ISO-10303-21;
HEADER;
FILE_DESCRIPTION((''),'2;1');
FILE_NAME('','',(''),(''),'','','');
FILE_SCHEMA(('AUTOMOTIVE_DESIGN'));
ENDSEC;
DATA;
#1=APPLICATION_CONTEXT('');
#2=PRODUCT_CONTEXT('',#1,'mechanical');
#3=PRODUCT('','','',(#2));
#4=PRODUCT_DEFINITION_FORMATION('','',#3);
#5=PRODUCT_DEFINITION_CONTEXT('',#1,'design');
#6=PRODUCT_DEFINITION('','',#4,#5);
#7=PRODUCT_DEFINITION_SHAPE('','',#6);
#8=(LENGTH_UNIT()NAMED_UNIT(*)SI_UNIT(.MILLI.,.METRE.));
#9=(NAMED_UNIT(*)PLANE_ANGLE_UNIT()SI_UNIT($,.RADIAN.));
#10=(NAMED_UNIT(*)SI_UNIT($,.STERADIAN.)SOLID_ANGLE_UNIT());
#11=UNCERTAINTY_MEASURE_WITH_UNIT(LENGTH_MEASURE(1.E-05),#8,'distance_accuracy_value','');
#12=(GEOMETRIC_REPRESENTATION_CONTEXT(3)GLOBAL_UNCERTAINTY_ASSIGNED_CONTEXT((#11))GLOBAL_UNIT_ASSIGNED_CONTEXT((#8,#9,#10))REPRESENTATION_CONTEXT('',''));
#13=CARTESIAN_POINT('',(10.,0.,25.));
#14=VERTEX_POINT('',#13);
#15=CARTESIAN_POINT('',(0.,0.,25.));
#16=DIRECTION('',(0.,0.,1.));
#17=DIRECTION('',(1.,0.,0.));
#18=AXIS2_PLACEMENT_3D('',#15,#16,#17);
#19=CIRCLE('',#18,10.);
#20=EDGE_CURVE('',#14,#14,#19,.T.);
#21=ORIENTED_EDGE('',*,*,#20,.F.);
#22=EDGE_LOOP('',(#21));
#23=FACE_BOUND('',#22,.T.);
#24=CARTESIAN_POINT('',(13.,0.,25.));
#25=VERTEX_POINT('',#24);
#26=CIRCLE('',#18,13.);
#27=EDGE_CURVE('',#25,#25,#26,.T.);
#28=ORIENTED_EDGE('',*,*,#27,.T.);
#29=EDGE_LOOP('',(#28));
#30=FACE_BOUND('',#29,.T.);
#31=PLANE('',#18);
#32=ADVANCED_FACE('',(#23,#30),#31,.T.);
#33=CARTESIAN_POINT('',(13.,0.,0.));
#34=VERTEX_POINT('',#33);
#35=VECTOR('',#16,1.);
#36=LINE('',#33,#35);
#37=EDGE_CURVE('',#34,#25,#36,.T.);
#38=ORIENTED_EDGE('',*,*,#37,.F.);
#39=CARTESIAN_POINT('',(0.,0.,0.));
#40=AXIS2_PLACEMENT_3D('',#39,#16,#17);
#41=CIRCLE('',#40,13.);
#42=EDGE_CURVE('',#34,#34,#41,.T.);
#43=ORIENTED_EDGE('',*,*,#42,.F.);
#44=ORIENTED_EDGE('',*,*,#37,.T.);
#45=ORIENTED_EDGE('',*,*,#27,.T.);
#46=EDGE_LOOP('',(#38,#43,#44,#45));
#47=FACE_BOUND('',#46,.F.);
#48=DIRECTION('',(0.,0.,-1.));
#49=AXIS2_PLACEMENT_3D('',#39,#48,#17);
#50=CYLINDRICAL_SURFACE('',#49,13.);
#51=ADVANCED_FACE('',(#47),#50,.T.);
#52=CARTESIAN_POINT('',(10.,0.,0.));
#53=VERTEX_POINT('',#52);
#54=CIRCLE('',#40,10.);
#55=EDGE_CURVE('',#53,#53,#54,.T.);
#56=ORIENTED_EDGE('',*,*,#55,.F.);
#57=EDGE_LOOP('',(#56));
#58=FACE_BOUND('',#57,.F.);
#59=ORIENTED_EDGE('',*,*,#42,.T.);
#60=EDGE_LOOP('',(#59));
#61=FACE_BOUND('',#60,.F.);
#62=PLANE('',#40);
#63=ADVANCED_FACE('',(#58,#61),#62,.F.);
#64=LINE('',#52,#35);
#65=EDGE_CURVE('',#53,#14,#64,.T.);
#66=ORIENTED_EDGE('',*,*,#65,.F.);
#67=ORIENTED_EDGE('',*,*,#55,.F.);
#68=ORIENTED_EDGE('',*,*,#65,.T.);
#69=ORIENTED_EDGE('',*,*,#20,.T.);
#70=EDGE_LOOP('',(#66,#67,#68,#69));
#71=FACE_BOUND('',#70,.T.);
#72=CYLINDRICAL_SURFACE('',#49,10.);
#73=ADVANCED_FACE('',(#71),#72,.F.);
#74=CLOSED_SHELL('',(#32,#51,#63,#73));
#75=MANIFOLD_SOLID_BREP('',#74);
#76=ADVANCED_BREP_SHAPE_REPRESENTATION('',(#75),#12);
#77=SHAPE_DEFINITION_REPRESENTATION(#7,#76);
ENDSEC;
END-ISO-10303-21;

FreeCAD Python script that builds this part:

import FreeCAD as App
import Part
import Sketcher

doc = App.newDocument("Part")
body = doc.addObject("PartDesign::Body", "Body")

sketch1 = body.newObject("Sketcher::SketchObject", "Sketch")
sketch1.AttachmentSupport = (doc.getObject("XY_Plane"), [""])
sketch1.MapMode = "FlatFace"
sketch1.addGeometry([
    Part.Circle(App.Vector(0, 0, 0), App.Vector(0, 0, 1), 13),
    Part.Circle(App.Vector(0, 0, 0), App.Vector(0, 0, 1), 10),
], False)
sketch1.addConstraint([
    Sketcher.Constraint("Coincident", 0, 3, -1, 1),
    Sketcher.Constraint("Coincident", 1, 3, -1, 1),
    Sketcher.Constraint("Diameter", 0, 26.0),
    Sketcher.Constraint("Diameter", 1, 20.0),
])
pad1 = body.newObject("PartDesign::Pad", "Pad")
pad1.Profile = sketch1
pad1.Length = 25

doc.recompute()
